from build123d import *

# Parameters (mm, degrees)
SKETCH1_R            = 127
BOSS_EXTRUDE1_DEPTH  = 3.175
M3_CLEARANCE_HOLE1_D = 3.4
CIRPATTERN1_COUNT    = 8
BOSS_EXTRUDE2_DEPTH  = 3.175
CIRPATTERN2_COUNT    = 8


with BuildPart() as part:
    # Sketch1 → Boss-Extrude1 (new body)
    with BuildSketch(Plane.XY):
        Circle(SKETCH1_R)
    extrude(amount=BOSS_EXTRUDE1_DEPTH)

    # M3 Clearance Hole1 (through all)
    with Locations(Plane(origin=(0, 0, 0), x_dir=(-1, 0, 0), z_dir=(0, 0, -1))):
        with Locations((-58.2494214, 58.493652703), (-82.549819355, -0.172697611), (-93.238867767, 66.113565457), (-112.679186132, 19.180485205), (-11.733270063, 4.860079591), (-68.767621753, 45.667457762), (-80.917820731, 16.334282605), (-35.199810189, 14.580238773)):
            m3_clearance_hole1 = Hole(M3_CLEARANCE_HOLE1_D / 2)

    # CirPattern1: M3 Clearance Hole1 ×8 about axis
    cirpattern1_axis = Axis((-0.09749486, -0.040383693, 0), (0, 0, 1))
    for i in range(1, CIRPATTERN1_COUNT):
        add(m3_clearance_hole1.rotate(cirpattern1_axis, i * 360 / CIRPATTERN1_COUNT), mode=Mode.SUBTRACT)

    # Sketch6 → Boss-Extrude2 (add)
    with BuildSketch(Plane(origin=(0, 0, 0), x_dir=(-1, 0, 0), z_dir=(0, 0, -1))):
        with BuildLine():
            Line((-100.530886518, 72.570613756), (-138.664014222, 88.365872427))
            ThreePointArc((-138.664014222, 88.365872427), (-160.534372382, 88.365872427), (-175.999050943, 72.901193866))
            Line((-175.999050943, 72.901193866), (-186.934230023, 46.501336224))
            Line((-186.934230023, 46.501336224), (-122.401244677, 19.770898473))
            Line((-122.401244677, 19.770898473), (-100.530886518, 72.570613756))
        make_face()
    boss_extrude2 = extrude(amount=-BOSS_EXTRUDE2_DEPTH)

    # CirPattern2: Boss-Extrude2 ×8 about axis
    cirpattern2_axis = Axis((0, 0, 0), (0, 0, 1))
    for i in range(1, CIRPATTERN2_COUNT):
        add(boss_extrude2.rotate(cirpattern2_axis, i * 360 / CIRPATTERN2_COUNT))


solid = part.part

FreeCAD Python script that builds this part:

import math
import FreeCAD as App
import Part
import Sketcher
Q = App.Units.Quantity

doc = App.newDocument("Part")
body = doc.addObject("PartDesign::Body", "Body")

# Sketch on XY plane
sketch1 = body.newObject("Sketcher::SketchObject", "Sketch")
sketch1.AttachmentSupport = (doc.getObject("XY_Plane"), [""])
sketch1.MapMode = "FlatFace"
sketch1.addGeometry(Part.Circle(App.Vector(0, 0, 0), App.Vector(0, 0, 1), 127), False)
sketch1.addConstraint([
    Sketcher.Constraint("Coincident", 0, 3, -1, 1),
    Sketcher.Constraint("Diameter", 0, Q("10 in")),
])
pad1 = body.newObject("PartDesign::Pad", "Pad")
pad1.Profile = sketch1
pad1.Length = Q("0.125 in")

# Sketch on XY plane
sketch2 = body.newObject("Sketcher::SketchObject", "Sketch001")
sketch2.AttachmentSupport = (doc.getObject("XY_Plane"), [""])
sketch2.MapMode = "FlatFace"
sketch2.addGeometry([
    Part.Circle(App.Vector(58.249421, 58.493653, 0), App.Vector(0, 0, 1), 1.7),  # 0
    Part.Circle(App.Vector(82.549819, -0.172698, 0), App.Vector(0, 0, 1), 1.7),  # 1
    Part.Circle(App.Vector(93.238868, 66.113565, 0), App.Vector(0, 0, 1), 1.7),  # 2
    Part.Circle(App.Vector(112.679186, 19.180485, 0), App.Vector(0, 0, 1), 1.7),  # 3
    Part.Circle(App.Vector(11.73327, 4.86008, 0), App.Vector(0, 0, 1), 1.7),  # 4
    Part.Circle(App.Vector(68.767622, 45.667458, 0), App.Vector(0, 0, 1), 1.7),  # 5
    Part.Circle(App.Vector(80.917821, 16.334283, 0), App.Vector(0, 0, 1), 1.7),  # 6
    Part.Circle(App.Vector(35.19981, 14.580239, 0), App.Vector(0, 0, 1), 1.7),  # 7
], False)
sketch2.addConstraint([
    Sketcher.Constraint("Equal", 0, 1),
    Sketcher.Constraint("Equal", 1, 2),
    Sketcher.Constraint("Equal", 2, 3),
    Sketcher.Constraint("Equal", 3, 4),
    Sketcher.Constraint("Equal", 4, 5),
    Sketcher.Constraint("Equal", 5, 6),
    Sketcher.Constraint("Equal", 6, 7),
    Sketcher.Constraint("Diameter", 0, Q("3.4 mm")),
    Sketcher.Constraint("DistanceX", 0, 3, 5, 3, Q("10.5182 mm")),
    Sketcher.Constraint("DistanceX", 6, 3, 1, 3, Q("1.631999 mm")),
    Sketcher.Constraint("DistanceX", 5, 3, 6, 3, Q("12.150199 mm")),
    Sketcher.Constraint("DistanceX", -1, 1, 0, 3, Q("58.249421 mm")),
    Sketcher.Constraint("DistanceX", -1, 1, 4, 3, Q("11.73327 mm")),
    Sketcher.Constraint("DistanceY", -1, 1, 4, 3, Q("4.86008 mm")),
    Sketcher.Constraint("DistanceX", -1, 1, 7, 3, Q("35.19981 mm")),
    Sketcher.Constraint("DistanceY", -1, 1, 7, 3, Q("14.580239 mm")),
    Sketcher.Constraint("DistanceY", 1, 3, 0, 3, Q("58.66635 mm")),
    Sketcher.Constraint("DistanceX", 1, 3, 2, 3, Q("10.689048 mm")),
    Sketcher.Constraint("DistanceX", 2, 3, 3, 3, Q("19.440318 mm")),
    Sketcher.Constraint("DistanceY", 3, 3, 2, 3, Q("46.93308 mm")),
    Sketcher.Constraint("DistanceY", 4, 3, 5, 3, Q("40.807378 mm")),
    Sketcher.Constraint("DistanceY", 1, 3, 6, 3, Q("16.50698 mm")),
    Sketcher.Constraint("DistanceY", -1, 1, 0, 3, Q("58.493653 mm")),
    Sketcher.Constraint("DistanceY", -1, 1, 2, 3, Q("66.113565 mm")),
])
doc.recompute()
hole = body.newObject("PartDesign::Hole", "Hole")
hole.Profile = sketch2
hole.ThreadType = "None"
hole.Diameter = 3.4
hole.DepthType = "ThroughAll"
hole.Reversed = True
doc.recompute()

datumline = body.newObject("PartDesign::Line", "DatumLine")
datumline.Placement = App.Placement(App.Vector(-0.097495, -0.040384, 0), App.Rotation(App.Vector(0, 0, 1), App.Vector(0, 0, 1)))
polarpattern = body.newObject("PartDesign::PolarPattern", "PolarPattern")
polarpattern.Originals = [hole]
polarpattern.Axis = (datumline, [""])
polarpattern.Angle = 360
polarpattern.Occurrences = 8
body.Tip = polarpattern

# Sketch on XY plane
sketch3 = body.newObject("Sketcher::SketchObject", "Sketch002")
sketch3.AttachmentSupport = (doc.getObject("XY_Plane"), [""])
sketch3.MapMode = "FlatFace"
sketch3.addGeometry([
    Part.LineSegment(App.Vector(100.530887, 72.570614, 0), App.Vector(138.664014, 88.365872, 0)),  # 0
    Part.ArcOfCircle(Part.Circle(App.Vector(149.599193, 61.966015, 0), App.Vector(0, 0, 1), 28.575), math.radians(22.5), math.radians(112.5)),  # 1
    Part.LineSegment(App.Vector(175.999051, 72.901194, 0), App.Vector(186.93423, 46.501336, 0)),  # 2
    Part.LineSegment(App.Vector(186.93423, 46.501336, 0), App.Vector(122.401245, 19.770898, 0)),  # 3
    Part.LineSegment(App.Vector(122.401245, 19.770898, 0), App.Vector(100.530887, 72.570614, 0)),  # 4
], False)
sketch3.addConstraint([
    Sketcher.Constraint("Tangent", 0, 2, 1, 2),
    Sketcher.Constraint("Tangent", 1, 1, 2, 1),
    Sketcher.Constraint("Coincident", 2, 2, 3, 1),
    Sketcher.Constraint("Coincident", 3, 2, 4, 1),
    Sketcher.Constraint("Coincident", 4, 2, 0, 1),
    Sketcher.Constraint("Perpendicular", 0, 2),
    Sketcher.Constraint("Perpendicular", 2, 3),
    Sketcher.Constraint("Perpendicular", 3, 4),
    Sketcher.Constraint("Radius", 1, Q("1.125 in")),
    Sketcher.Constraint("Angle", 0, Q("22.5 deg")),
    Sketcher.Constraint("Distance", 3, Q("2.75 in")),
    Sketcher.Constraint("Distance", 4, Q("2.25 in")),
    Sketcher.Constraint("DistanceY", -1, 1, 3, 2, Q("19.770898 mm")),
    Sketcher.Constraint("DistanceX", -1, 1, 1, 1, Q("175.999051 mm")),
])
pad2 = body.newObject("PartDesign::Pad", "Pad001")
pad2.Profile = sketch3
pad2.Length = Q("0.125 in")
doc.recompute()

polarpattern2 = body.newObject("PartDesign::PolarPattern", "PolarPattern001")
polarpattern2.Originals = [pad2]
polarpattern2.Axis = (doc.getObject("Z_Axis"), [""])
polarpattern2.Angle = 360
polarpattern2.Occurrences = 8
body.Tip = polarpattern2

doc.recompute()
